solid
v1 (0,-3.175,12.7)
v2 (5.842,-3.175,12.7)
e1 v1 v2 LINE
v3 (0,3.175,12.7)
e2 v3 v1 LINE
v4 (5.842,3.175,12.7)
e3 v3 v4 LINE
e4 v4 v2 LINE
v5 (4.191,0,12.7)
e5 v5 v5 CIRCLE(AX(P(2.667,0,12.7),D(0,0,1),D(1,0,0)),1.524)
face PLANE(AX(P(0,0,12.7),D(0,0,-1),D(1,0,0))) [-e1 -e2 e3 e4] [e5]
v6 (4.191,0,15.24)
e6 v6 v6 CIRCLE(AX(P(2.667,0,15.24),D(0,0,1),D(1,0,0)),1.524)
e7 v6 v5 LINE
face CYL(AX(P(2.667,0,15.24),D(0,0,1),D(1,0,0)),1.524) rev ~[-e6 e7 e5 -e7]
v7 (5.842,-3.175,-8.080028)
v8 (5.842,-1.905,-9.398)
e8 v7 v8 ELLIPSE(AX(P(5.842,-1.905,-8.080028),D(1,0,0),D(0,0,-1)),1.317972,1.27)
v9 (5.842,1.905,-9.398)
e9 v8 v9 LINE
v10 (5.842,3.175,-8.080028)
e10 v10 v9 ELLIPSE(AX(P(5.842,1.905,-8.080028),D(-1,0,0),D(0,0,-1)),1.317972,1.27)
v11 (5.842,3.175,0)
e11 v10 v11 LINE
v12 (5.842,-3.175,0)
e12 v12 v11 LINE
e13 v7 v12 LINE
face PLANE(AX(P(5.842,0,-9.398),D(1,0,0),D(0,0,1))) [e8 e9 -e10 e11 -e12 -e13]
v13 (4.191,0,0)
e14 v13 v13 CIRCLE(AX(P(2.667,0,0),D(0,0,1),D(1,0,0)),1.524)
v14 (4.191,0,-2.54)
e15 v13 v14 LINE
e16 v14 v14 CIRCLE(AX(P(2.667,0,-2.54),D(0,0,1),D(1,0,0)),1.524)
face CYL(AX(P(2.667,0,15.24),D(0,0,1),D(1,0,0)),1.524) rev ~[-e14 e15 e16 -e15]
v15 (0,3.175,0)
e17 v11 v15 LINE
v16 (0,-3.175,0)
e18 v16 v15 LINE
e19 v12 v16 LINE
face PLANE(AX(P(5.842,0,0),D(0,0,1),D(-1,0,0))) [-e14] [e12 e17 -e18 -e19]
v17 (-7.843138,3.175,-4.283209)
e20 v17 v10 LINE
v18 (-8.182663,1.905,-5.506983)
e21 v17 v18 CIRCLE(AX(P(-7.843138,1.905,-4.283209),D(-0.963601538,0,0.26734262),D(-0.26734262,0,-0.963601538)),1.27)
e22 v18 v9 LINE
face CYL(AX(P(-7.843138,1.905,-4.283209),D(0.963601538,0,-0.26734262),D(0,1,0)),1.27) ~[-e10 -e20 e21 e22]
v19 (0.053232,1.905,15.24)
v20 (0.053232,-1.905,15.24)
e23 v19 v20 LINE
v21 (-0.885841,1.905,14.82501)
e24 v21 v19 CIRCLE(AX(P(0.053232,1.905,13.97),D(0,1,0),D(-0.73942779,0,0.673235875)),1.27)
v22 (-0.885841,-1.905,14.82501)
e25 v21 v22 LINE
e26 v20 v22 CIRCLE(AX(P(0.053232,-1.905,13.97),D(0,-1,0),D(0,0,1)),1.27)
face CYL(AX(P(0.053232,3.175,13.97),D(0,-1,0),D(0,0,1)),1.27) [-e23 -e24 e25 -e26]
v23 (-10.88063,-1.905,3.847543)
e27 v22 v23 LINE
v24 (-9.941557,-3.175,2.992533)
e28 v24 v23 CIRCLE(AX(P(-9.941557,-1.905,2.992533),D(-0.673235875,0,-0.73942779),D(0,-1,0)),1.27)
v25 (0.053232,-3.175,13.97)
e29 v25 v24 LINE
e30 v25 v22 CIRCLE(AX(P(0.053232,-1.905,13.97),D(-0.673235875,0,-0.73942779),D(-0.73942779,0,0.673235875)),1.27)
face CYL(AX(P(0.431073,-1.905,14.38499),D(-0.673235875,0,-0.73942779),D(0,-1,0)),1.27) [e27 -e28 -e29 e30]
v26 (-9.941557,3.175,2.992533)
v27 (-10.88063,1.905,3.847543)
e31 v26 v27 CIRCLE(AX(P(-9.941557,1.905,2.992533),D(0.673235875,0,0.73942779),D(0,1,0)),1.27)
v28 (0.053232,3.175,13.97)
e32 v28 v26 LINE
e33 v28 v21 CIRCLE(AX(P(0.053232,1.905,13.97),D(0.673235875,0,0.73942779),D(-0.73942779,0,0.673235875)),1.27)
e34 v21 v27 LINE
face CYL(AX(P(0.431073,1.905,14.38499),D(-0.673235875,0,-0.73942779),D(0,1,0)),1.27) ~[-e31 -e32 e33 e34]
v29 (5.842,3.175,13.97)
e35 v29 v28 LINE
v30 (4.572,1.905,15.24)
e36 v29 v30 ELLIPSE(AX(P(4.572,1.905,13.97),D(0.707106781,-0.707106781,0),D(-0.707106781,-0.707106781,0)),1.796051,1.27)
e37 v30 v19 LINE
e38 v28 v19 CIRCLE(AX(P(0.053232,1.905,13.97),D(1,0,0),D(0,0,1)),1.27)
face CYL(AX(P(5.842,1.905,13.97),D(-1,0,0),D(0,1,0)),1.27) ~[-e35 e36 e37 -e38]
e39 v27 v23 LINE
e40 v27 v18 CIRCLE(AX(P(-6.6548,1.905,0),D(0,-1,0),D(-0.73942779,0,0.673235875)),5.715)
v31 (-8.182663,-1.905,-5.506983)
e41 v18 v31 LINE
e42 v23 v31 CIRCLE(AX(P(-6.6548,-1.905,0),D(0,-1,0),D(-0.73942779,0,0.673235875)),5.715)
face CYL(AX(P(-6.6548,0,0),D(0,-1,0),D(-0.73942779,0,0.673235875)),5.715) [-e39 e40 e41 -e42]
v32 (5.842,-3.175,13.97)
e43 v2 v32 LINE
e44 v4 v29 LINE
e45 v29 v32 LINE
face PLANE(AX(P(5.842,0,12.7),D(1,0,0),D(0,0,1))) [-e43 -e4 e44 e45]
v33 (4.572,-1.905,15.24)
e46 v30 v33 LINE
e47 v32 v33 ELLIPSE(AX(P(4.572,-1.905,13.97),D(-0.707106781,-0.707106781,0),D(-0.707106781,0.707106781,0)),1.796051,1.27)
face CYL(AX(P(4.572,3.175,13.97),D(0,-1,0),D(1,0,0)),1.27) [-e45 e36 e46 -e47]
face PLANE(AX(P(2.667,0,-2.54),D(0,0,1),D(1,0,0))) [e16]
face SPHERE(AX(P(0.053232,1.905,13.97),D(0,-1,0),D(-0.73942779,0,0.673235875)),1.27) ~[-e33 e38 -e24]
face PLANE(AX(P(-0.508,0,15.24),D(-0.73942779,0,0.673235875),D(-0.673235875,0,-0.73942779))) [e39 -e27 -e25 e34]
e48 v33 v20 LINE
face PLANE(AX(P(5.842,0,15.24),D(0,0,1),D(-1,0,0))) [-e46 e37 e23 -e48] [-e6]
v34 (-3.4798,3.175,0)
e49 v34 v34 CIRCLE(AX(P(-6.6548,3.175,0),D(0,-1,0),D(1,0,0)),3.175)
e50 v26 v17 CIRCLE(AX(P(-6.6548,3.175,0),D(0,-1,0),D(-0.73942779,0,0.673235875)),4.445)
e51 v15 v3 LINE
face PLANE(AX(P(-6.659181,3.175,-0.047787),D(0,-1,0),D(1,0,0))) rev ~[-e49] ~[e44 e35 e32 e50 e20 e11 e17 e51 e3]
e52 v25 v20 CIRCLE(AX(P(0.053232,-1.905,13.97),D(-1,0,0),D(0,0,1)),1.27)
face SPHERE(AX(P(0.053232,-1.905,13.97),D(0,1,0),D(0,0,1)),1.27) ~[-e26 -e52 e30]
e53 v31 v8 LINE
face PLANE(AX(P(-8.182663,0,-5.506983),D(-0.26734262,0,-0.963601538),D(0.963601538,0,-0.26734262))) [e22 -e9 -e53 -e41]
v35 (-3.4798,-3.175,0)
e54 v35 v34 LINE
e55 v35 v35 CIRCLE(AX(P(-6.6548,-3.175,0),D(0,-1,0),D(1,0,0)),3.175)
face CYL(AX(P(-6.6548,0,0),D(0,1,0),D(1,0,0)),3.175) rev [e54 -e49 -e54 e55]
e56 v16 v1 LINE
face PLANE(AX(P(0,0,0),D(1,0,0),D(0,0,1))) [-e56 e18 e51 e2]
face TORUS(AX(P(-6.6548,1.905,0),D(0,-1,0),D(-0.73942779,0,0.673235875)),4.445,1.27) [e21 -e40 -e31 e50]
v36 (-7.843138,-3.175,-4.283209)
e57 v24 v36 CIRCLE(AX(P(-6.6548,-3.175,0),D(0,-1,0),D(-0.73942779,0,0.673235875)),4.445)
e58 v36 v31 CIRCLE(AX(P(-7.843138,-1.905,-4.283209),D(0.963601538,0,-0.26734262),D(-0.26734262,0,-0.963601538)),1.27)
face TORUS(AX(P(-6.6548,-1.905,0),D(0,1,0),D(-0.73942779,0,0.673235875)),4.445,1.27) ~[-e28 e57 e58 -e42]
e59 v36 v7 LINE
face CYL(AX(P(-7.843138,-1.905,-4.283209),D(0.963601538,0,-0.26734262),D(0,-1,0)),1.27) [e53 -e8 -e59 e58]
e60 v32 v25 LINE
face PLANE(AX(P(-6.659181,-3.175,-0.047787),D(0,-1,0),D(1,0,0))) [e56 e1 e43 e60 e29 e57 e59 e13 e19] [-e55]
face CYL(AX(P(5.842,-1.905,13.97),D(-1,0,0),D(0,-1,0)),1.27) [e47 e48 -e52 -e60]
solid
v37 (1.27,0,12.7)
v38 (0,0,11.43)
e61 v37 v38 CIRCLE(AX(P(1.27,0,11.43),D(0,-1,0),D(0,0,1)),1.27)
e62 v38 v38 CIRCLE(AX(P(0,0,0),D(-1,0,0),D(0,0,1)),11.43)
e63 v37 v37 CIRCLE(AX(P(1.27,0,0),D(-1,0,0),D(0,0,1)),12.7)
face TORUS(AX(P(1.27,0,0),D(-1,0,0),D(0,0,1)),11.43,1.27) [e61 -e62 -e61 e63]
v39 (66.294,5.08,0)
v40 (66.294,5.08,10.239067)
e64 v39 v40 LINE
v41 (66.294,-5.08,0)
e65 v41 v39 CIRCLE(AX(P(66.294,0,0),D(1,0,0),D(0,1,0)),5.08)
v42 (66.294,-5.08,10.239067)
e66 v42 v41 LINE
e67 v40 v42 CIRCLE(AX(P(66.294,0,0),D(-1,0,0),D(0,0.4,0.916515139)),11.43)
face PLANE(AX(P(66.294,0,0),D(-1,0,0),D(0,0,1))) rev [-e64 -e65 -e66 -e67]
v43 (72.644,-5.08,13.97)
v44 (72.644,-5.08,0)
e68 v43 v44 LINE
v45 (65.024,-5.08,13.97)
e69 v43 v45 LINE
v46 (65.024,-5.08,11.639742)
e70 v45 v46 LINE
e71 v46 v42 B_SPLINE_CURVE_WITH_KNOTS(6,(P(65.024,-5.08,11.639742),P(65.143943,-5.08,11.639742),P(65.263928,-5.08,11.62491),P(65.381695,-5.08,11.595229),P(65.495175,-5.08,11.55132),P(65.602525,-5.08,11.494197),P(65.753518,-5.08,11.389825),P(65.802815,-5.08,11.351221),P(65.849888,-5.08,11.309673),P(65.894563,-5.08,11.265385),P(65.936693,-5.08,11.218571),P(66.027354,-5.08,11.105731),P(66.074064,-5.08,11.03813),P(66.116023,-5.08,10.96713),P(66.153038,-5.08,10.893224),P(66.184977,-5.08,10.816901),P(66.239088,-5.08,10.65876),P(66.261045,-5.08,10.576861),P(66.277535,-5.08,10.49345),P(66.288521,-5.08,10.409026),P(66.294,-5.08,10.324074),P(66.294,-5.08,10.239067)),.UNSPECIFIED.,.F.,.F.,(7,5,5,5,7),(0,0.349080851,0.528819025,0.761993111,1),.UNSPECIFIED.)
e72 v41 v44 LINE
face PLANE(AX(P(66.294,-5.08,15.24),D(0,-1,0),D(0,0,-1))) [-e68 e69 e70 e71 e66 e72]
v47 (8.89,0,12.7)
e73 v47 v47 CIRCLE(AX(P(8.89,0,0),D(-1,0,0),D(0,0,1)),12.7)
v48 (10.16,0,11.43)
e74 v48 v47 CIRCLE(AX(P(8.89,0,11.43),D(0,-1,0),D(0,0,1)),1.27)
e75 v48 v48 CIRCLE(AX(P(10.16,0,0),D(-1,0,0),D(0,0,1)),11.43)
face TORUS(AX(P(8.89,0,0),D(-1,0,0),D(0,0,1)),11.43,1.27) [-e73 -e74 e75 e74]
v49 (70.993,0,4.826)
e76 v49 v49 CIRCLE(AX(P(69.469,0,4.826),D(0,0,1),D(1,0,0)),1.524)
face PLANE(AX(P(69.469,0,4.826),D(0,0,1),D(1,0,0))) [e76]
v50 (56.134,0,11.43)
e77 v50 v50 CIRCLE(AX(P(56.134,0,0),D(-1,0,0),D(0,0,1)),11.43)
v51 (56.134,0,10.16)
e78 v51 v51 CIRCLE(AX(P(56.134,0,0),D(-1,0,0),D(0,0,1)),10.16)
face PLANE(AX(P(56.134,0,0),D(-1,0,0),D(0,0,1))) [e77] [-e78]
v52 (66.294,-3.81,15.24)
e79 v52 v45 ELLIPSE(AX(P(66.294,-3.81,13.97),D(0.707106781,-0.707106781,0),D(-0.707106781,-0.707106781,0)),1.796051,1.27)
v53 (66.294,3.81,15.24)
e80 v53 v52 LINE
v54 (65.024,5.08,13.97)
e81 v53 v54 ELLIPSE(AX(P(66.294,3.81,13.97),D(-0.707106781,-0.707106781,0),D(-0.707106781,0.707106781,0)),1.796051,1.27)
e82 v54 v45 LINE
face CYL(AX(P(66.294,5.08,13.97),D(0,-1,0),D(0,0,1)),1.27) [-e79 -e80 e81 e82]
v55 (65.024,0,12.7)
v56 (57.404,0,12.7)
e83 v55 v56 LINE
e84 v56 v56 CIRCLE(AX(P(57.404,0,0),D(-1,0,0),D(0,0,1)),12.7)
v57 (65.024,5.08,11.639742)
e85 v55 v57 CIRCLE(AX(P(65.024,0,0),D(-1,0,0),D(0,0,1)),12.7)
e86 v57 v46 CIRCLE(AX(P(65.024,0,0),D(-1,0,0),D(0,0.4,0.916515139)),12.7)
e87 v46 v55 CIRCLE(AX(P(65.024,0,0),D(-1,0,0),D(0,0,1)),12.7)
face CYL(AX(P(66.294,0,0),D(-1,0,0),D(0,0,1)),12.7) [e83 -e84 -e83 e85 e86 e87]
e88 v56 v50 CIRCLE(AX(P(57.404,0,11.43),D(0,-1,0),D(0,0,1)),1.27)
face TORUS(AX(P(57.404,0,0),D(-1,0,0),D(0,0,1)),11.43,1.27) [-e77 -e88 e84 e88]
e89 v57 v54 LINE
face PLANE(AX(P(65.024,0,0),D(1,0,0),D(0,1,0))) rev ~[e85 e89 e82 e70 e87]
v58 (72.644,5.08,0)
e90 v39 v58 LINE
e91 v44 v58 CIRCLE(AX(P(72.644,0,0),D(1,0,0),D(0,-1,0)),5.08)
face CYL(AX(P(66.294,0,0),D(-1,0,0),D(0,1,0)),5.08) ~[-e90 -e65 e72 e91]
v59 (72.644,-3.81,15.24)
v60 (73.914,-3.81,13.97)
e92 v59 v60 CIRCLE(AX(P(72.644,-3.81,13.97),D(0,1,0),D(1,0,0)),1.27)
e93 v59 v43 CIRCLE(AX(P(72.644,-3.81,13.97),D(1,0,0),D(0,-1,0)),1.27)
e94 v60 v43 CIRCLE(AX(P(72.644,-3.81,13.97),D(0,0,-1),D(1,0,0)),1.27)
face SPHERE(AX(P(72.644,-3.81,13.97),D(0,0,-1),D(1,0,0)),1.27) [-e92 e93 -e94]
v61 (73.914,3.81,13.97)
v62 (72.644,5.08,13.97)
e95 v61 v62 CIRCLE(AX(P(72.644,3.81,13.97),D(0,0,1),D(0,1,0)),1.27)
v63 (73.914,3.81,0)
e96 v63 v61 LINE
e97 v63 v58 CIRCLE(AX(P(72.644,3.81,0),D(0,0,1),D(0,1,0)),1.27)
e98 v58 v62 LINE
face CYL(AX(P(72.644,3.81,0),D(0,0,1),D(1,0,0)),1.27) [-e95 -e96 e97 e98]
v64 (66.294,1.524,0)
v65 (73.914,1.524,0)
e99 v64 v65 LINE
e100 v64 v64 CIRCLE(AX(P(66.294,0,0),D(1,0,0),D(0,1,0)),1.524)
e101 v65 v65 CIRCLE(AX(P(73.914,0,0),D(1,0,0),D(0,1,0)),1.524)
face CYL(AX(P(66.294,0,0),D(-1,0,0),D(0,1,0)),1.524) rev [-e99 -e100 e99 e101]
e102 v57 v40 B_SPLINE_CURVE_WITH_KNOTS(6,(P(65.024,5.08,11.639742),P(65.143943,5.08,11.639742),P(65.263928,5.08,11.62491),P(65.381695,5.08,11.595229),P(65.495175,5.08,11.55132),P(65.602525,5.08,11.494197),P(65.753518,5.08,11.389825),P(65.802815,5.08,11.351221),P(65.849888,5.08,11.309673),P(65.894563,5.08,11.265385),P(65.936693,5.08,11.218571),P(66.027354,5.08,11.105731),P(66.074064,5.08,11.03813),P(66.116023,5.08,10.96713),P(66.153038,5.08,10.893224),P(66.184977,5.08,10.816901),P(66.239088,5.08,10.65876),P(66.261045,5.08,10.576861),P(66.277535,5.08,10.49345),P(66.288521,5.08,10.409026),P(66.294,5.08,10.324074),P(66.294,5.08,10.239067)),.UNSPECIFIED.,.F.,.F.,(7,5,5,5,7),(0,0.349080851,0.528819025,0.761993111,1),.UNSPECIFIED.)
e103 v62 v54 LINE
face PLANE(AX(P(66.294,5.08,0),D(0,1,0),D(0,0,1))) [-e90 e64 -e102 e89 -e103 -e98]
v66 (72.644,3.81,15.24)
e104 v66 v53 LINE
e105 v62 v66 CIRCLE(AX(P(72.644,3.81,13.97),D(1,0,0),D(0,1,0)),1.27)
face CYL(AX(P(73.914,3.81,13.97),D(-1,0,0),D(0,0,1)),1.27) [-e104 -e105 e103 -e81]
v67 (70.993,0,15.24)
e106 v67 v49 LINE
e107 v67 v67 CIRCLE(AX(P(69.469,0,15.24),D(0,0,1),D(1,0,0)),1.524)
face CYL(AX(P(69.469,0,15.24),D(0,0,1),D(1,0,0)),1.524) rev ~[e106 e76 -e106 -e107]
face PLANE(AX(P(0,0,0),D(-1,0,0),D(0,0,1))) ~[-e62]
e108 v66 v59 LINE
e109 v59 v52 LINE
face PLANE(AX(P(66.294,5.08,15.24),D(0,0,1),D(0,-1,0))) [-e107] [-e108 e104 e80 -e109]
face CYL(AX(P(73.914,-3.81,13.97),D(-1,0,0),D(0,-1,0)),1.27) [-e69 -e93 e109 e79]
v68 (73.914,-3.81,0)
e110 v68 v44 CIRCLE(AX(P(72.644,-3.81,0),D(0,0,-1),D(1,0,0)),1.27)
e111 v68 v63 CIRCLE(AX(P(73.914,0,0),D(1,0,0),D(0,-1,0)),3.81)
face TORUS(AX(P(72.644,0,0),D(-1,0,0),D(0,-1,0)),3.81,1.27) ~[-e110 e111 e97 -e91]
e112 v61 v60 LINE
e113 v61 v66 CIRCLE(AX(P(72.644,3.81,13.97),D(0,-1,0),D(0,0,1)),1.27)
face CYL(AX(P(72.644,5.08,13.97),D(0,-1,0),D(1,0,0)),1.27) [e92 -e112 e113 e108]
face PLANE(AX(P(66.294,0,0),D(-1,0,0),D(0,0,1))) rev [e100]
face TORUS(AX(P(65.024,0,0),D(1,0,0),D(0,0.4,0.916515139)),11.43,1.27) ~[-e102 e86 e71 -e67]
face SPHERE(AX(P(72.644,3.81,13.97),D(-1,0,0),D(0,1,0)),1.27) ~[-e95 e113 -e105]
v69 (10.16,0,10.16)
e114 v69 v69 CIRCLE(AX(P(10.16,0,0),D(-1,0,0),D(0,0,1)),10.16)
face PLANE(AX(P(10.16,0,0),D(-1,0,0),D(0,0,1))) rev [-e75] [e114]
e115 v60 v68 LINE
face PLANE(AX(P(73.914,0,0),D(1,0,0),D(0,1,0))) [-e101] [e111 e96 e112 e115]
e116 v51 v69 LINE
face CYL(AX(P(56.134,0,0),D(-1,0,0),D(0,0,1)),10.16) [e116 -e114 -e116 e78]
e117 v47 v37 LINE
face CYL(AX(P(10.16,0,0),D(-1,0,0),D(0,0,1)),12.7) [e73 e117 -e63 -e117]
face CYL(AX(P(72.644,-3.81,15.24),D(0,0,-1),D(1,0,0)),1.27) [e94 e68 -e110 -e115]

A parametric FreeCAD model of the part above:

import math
import FreeCAD as App
import Part
import Sketcher
from FreeCAD import Vector
Q = App.Units.Quantity


def edges_at(feature, points):
    """Names of the edges that pass closest to the given points."""
    edges = feature.Shape.Edges
    near = lambda p: min(range(len(edges)), key=lambda i: edges[i].distToShape(Part.Vertex(*p))[0])
    return sorted({f"Edge{near(p) + 1}" for p in points})


def add_polygon(sketch, points):
    """Adds a closed chain of lines whose ends are joined by coincident constraints."""
    first, n = sketch.GeometryCount, len(points)
    for a, b in zip(points, points[1:] + points[:1]):
        sketch.addGeometry(Part.LineSegment(App.Vector(*a, 0), App.Vector(*b, 0)), False)
    for i in range(n):
        sketch.addConstraint(Sketcher.Constraint("Coincident", first + i, 2, first + (i + 1) % n, 1))

doc = App.newDocument("Part")
body = doc.addObject("PartDesign::Body", "Body")

sketch1 = body.newObject("Sketcher::SketchObject", "Sketch")
sketch1.AttachmentSupport = (doc.getObject("XZ_Plane"), [""])
sketch1.MapMode = "FlatFace"
add_polygon(sketch1, [(66.3, 0), (66.3, 12.7), (56.1, 12.7), (56.1, 10.2), (10.2, 10.2), (10.2, 12.7), (0, 12.7), (0, 0)])
sketch1.addConstraint(Sketcher.Constraint("Vertical", 0))
sketch1.addConstraint(Sketcher.Constraint("Horizontal", 1))
sketch1.addConstraint(Sketcher.Constraint("Vertical", 2))
sketch1.addConstraint(Sketcher.Constraint("Horizontal", 3))
sketch1.addConstraint(Sketcher.Constraint("Vertical", 4))
sketch1.addConstraint(Sketcher.Constraint("Horizontal", 5))
sketch1.addConstraint(Sketcher.Constraint("Vertical", 6))
sketch1.addConstraint(Sketcher.Constraint("Horizontal", 7))
sketch1.addConstraint(Sketcher.Constraint("Coincident", 6, 2, -1, 1))
sketch1.addConstraint(Sketcher.Constraint("Horizontal", 1, 2, 4, 2))
sketch1.addConstraint(Sketcher.Constraint("Equal", 1, 5))
sketch1.addConstraint(Sketcher.Constraint("DistanceX", 1, 2, 1, 1, Q("0.4 in")))
sketch1.addConstraint(Sketcher.Constraint("DistanceY", 0, 1, 0, 2, Q("0.5 in")))
sketch1.addConstraint(Sketcher.Constraint("DistanceY", 2, 2, 2, 1, Q("0.1 in")))
sketch1.addConstraint(Sketcher.Constraint("DistanceX", 3, 2, 3, 1, Q("1.81 in")))
revolution = body.newObject("PartDesign::Revolution", "Revolution")
revolution.Profile = sketch1
revolution.ReferenceAxis = (sketch1, ["H_Axis"])
revolution.Angle = 360

sketch2 = body.newObject("Sketcher::SketchObject", "Sketch001")
sketch2.AttachmentSupport = (doc.getObject("YZ_Plane"), [""])
sketch2.MapMode = "FlatFace"
sketch2.AttachmentOffset = App.Placement(Vector(0, 0, 2.61 * 25.4), App.Rotation())
sketch2.addGeometry(Part.ArcOfCircle(Part.Circle(Vector(0, 0, 0), Vector(0, 0, 1), 5.1), math.radians(180), math.radians(360)), False)
sketch2.addGeometry(Part.LineSegment(Vector(5.1, 0, 0), Vector(5.1, 15.2, 0)), False)
sketch2.addGeometry(Part.LineSegment(Vector(5.1, 15.2, 0), Vector(-5.1, 15.2, 0)), False)
sketch2.addGeometry(Part.LineSegment(Vector(-5.1, 15.2, 0), Vector(-5.1, 0, 0)), False)
sketch2.addGeometry(Part.Circle(Vector(0, 0, 0), Vector(0, 0, 1), 1.5), False)
sketch2.addConstraint(Sketcher.Constraint("Tangent", 0, 2, 1, 1))
sketch2.addConstraint(Sketcher.Constraint("Coincident", 1, 2, 2, 1))
sketch2.addConstraint(Sketcher.Constraint("Coincident", 2, 2, 3, 1))
sketch2.addConstraint(Sketcher.Constraint("Tangent", 3, 2, 0, 1))
sketch2.addConstraint(Sketcher.Constraint("Vertical", 1))
sketch2.addConstraint(Sketcher.Constraint("Horizontal", 2))
sketch2.addConstraint(Sketcher.Constraint("Vertical", 3))
sketch2.addConstraint(Sketcher.Constraint("Coincident", 0, 3, -1, 1))
sketch2.addConstraint(Sketcher.Constraint("Coincident", 4, 3, -1, 1))
sketch2.addConstraint(Sketcher.Constraint("Radius", 0, Q("0.2 in")))
sketch2.addConstraint(Sketcher.Constraint("Diameter", 4, Q("0.12 in")))
sketch2.addConstraint(Sketcher.Constraint("DistanceY", 1, 1, 1, 2, Q("0.6 in")))
pad1 = body.newObject("PartDesign::Pad", "Pad")
pad1.Profile = sketch2
pad1.Type = "TwoLengths"
pad1.Length = Q("0.3 in")
pad1.Length2 = Q("0.05 in")

sketch3 = body.newObject("Sketcher::SketchObject", "Sketch002")
sketch3.AttachmentSupport = (doc.getObject("XY_Plane"), [""])
sketch3.MapMode = "FlatFace"
sketch3.AttachmentOffset = App.Placement(Vector(0, 0, 0.6 * 25.4), App.Rotation())
sketch3.addGeometry(Part.Circle(Vector(69.5, 0, 0), Vector(0, 0, 1), 1.5), False)
sketch3.addConstraint(Sketcher.Constraint("PointOnObject", 0, 3, -1))
sketch3.addConstraint(Sketcher.Constraint("Diameter", 0, Q("0.12 in")))
sketch3.addConstraint(Sketcher.Constraint("DistanceX", -1, 1, 0, 3, Q("2.735 in")))
pocket1 = body.newObject("PartDesign::Pocket", "Pocket")
pocket1.Profile = sketch3
pocket1.Length = Q("0.41 in")
doc.recompute()

fillet = body.newObject("PartDesign::Fillet", "Fillet")
fillet.Base = (pocket1, edges_at(pocket1, [
    (0, 0, -12.7),
    (10.16, 0, -12.7),
    (56.134, 0, -12.7),
    (66.294, 0, -12.7),
    (69.469, 5.08, 15.24),
    (65.024, 0, 15.24),
    (73.914, 5.08, 7.62),
    (73.914, 0, 15.24),
    (69.469, -5.08, 15.24),
]))
fillet.Radius = Q("0.05 in")
body2 = doc.addObject("PartDesign::Body", "Body001")

sketch4 = body2.newObject("Sketcher::SketchObject", "Sketch003")
sketch4.AttachmentSupport = (doc.getObject("XZ_Plane001"), [""])
sketch4.MapMode = "FlatFace"
sketch4.addGeometry(Part.LineSegment(Vector(0, 0, 0), Vector(0, 12.7, 0)), False)
sketch4.addGeometry(Part.LineSegment(Vector(0, 12.7, 0), Vector(5.8, 12.7, 0)), False)
sketch4.addGeometry(Part.LineSegment(Vector(5.8, 12.7, 0), Vector(5.8, 15.2, 0)), False)
sketch4.addGeometry(Part.LineSegment(Vector(5.8, 15.2, 0), Vector(-0.5, 15.2, 0)), False)
sketch4.addGeometry(Part.LineSegment(Vector(-0.5, 15.2, 0), Vector(-10.9, 3.8, 0)), False)
sketch4.addGeometry(Part.ArcOfCircle(Part.Circle(Vector(-6.7, 0, 0), Vector(0, 0, 1), 5.7), math.radians(138), math.radians(254)), False)
sketch4.addGeometry(Part.LineSegment(Vector(-8.2, -5.5, 0), Vector(5.8, -9.4, 0)), False)
sketch4.addGeometry(Part.LineSegment(Vector(5.8, -9.4, 0), Vector(5.8, 0, 0)), False)
sketch4.addGeometry(Part.LineSegment(Vector(5.8, 0, 0), Vector(0, 0, 0)), False)
sketch4.addGeometry(Part.Circle(Vector(-6.7, 0, 0), Vector(0, 0, 1), 3.2), False)
sketch4.addConstraint(Sketcher.Constraint("Coincident", 0, 2, 1, 1))
sketch4.addConstraint(Sketcher.Constraint("Coincident", 1, 2, 2, 1))
sketch4.addConstraint(Sketcher.Constraint("Coincident", 2, 2, 3, 1))
sketch4.addConstraint(Sketcher.Constraint("Coincident", 3, 2, 4, 1))
sketch4.addConstraint(Sketcher.Constraint("Tangent", 4, 2, 5, 1))
sketch4.addConstraint(Sketcher.Constraint("Tangent", 5, 2, 6, 1))
sketch4.addConstraint(Sketcher.Constraint("Coincident", 6, 2, 7, 1))
sketch4.addConstraint(Sketcher.Constraint("Coincident", 7, 2, 8, 1))
sketch4.addConstraint(Sketcher.Constraint("Coincident", 8, 2, 0, 1))
sketch4.addConstraint(Sketcher.Constraint("Vertical", 0))
sketch4.addConstraint(Sketcher.Constraint("Horizontal", 1))
sketch4.addConstraint(Sketcher.Constraint("Vertical", 2))
sketch4.addConstraint(Sketcher.Constraint("Horizontal", 3))
sketch4.addConstraint(Sketcher.Constraint("Vertical", 7))
sketch4.addConstraint(Sketcher.Constraint("Horizontal", 8))
sketch4.addConstraint(Sketcher.Constraint("Coincident", 8, 2, -1, 1))
sketch4.addConstraint(Sketcher.Constraint("Coincident", 9, 3, 5, 3))
sketch4.addConstraint(Sketcher.Constraint("PointOnObject", 5, 3, -1))
sketch4.addConstraint(Sketcher.Constraint("Vertical", 2, 2, 6, 2))
sketch4.addConstraint(Sketcher.Constraint("Diameter", 9, Q("0.25 in")))
sketch4.addConstraint(Sketcher.Constraint("DistanceY", 0, 1, 0, 2, Q("0.5 in")))
sketch4.addConstraint(Sketcher.Constraint("DistanceY", 2, 1, 2, 2, Q("0.1 in")))
sketch4.addConstraint(Sketcher.Constraint("Radius", 5, Q("0.225 in")))
sketch4.addConstraint(Sketcher.Constraint("DistanceX", 1, 1, 1, 2, Q("0.23 in")))
sketch4.addConstraint(Sketcher.Constraint("DistanceX", 3, 2, 3, 1, Q("0.25 in")))
sketch4.addConstraint(Sketcher.Constraint("DistanceY", 7, 1, 7, 2, Q("0.37 in")))
sketch4.addConstraint(Sketcher.Constraint("DistanceX", 5, 3, -1, 1, Q("0.262 in")))
pad2 = body2.newObject("PartDesign::Pad", "Pad001")
pad2.Profile = sketch4
pad2.Length = Q("0.25 in")
pad2.Midplane = True

sketch5 = body2.newObject("Sketcher::SketchObject", "Sketch004")
sketch5.AttachmentSupport = (doc.getObject("XY_Plane001"), [""])
sketch5.MapMode = "FlatFace"
sketch5.AttachmentOffset = App.Placement(Vector(0, 0, 0.6 * 25.4), App.Rotation())
sketch5.addGeometry(Part.Circle(Vector(2.7, 0, 0), Vector(0, 0, 1), 1.5), False)
sketch5.addConstraint(Sketcher.Constraint("PointOnObject", 0, 3, -1))
sketch5.addConstraint(Sketcher.Constraint("Diameter", 0, Q("0.12 in")))
sketch5.addConstraint(Sketcher.Constraint("DistanceX", -1, 1, 0, 3, Q("0.105 in")))
pocket2 = body2.newObject("PartDesign::Pocket", "Pocket001")
pocket2.Profile = sketch5
pocket2.Length = Q("0.7 in")
doc.recompute()

fillet2 = body2.newObject("PartDesign::Fillet", "Fillet001")
fillet2.Base = (pocket2, edges_at(pocket2, [
    (-5.694, 3.175, 9.544),
    (2.667, 3.175, 15.24),
    (-0.508, 0, 15.24),
    (2.667, -3.175, 15.24),
    (5.842, 0, 15.24),
    (-5.694, -3.175, 9.544),
]))
fillet2.Radius = Q("0.05 in")

doc.recompute()
